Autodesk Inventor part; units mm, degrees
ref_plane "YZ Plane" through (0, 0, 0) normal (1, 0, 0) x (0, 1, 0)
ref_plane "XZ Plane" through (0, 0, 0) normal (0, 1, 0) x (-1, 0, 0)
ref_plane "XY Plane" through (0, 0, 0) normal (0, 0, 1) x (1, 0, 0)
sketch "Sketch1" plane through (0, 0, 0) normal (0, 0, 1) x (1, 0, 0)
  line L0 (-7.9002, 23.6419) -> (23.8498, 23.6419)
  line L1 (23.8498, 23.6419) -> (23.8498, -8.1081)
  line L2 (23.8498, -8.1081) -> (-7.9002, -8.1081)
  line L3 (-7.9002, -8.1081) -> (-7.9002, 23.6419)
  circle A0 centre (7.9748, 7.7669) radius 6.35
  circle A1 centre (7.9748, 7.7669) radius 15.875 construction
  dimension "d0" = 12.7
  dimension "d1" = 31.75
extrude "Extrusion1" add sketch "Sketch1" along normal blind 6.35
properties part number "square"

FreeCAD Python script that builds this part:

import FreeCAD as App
import Part
import Sketcher
from FreeCAD import Vector
Q = App.Units.Quantity


def add_polygon(sketch, points):
    """Adds a closed chain of lines whose ends are joined by coincident constraints."""
    first, n = sketch.GeometryCount, len(points)
    for a, b in zip(points, points[1:] + points[:1]):
        sketch.addGeometry(Part.LineSegment(App.Vector(*a, 0), App.Vector(*b, 0)), False)
    for i in range(n):
        sketch.addConstraint(Sketcher.Constraint("Coincident", first + i, 2, first + (i + 1) % n, 1))

doc = App.newDocument("Part")
body = doc.addObject("PartDesign::Body", "Body")

# Sketch on XY plane
sketch1 = doc.addObject("Sketcher::SketchObject", "Sketch")
body.addObject(sketch1)
sketch1.AttachmentSupport = (doc.XY_Plane, [""])
sketch1.MapMode = "FlatFace"
add_polygon(sketch1, [(24, 24), (-8, 24), (-8, -8), (24, -8)])  # lines 0-3
sketch1.addGeometry(Part.Circle(Vector(8, 8, 0), Vector(0, 0, 1), 6), False)  # 4
sketch1.addConstraint(Sketcher.Constraint("Horizontal", 0))
sketch1.addConstraint(Sketcher.Constraint("Vertical", 1))
sketch1.addConstraint(Sketcher.Constraint("Horizontal", 2))
sketch1.addConstraint(Sketcher.Constraint("Vertical", 3))
sketch1.addConstraint(Sketcher.Constraint("Equal", 2, 1))
sketch1.addConstraint(Sketcher.Constraint("Diameter", 4, Q("0.5 in")))
sketch1.addConstraint(Sketcher.Constraint("DistanceX", 0, 2, 0, 1, Q("1.25 in")))
sketch1.addConstraint(Sketcher.Constraint("DistanceX", 0, 2, 4, 3, Q("0.625 in")))
sketch1.addConstraint(Sketcher.Constraint("DistanceY", 4, 3, 0, 2, Q("0.625 in")))
sketch1.addConstraint(Sketcher.Constraint("DistanceX", -1, 1, 4, 3, Q("7.9748 mm")))
sketch1.addConstraint(Sketcher.Constraint("DistanceY", -1, 1, 4, 3, Q("7.767 mm")))
pad1 = doc.addObject("PartDesign::Pad", "Pad")
body.addObject(pad1)
pad1.Profile = sketch1
pad1.Length = Q("0.25 in")

doc.recompute()
